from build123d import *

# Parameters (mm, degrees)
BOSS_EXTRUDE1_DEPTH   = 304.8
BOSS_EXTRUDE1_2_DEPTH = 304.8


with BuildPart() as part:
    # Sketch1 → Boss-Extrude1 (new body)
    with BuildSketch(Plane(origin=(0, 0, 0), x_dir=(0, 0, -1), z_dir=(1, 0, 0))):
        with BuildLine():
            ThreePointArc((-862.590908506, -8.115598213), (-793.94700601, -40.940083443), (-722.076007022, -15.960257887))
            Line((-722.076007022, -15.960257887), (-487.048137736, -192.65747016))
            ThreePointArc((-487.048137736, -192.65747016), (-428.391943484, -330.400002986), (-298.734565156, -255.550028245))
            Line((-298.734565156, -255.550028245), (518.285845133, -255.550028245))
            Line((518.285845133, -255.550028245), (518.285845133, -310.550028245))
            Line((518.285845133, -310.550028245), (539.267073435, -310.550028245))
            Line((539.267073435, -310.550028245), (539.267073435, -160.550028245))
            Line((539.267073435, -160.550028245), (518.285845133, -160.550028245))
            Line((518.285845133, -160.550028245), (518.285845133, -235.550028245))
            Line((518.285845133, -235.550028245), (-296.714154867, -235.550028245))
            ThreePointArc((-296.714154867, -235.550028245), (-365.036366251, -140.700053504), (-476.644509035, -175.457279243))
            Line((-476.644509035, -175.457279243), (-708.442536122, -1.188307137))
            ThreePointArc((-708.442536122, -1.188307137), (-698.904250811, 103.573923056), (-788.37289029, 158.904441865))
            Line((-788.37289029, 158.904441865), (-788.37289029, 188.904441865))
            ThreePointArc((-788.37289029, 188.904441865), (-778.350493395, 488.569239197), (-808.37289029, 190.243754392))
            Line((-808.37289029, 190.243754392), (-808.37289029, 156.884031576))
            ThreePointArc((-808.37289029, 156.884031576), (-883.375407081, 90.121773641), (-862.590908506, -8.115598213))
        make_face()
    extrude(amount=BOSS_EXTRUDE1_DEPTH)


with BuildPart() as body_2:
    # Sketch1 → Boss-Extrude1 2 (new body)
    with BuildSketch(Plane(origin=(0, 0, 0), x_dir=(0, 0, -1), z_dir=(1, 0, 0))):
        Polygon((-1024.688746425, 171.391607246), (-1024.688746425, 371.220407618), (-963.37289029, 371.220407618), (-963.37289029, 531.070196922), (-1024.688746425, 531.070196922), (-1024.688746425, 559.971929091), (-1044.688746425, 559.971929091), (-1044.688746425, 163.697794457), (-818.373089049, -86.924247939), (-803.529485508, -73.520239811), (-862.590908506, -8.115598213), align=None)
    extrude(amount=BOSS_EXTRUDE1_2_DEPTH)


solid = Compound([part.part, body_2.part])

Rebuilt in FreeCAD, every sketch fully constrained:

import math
import FreeCAD as App
import Part
import Sketcher

V = App.Vector

doc = App.newDocument("Part")
params = doc.addObject("Spreadsheet::Sheet", "Params")
for row, (alias, value) in enumerate([
    ("sketch1_radius", "100 mm"),
    ("sketch1_radius2", "150 mm"),
    ("sketch1_width", "55 mm"),
    ("sketch1_width2", "150 mm"),
    ("sketch1_width3", "75 mm"),
    ("pad1_length", "304.8 mm"),
    ("sketch2_height", "20 mm"),
    ("sketch2_length", "20 mm"),
    ("pad2_length", "304.8 mm"),
], start=1):
    params.set(f"A{row}", alias)
    params.set(f"B{row}", "=" + value)
    params.setAlias(f"B{row}", alias)

body = doc.addObject("PartDesign::Body", "Body")

# Sketch on YZ plane
sketch1 = body.newObject("Sketcher::SketchObject", "Sketch")
sketch1.AttachmentSupport = (doc.getObject("YZ_Plane"), [""])
sketch1.MapMode = "FlatFace"
sketch1.addGeometry(Part.ArcOfCircle(Part.Circle(V(59, 788, 0), V(0, 0, 1), 100), math.radians(132), math.radians(222)), False)
sketch1.addGeometry(Part.LineSegment(V(-16, 722, 0), V(-193, 487, 0)), False)
sketch1.addGeometry(Part.ArcOfCircle(Part.Circle(V(-236, 397, 0), V(0, 0, 1), 100), math.radians(65), math.radians(258)), False)
sketch1.addGeometry(Part.LineSegment(V(-256, 299, 0), V(-256, -518, 0)), False)
sketch1.addGeometry(Part.LineSegment(V(-256, -518, 0), V(-311, -518, 0)), False)
sketch1.addGeometry(Part.LineSegment(V(-311, -518, 0), V(-311, -539, 0)), False)
sketch1.addGeometry(Part.LineSegment(V(-311, -539, 0), V(-161, -539, 0)), False)
sketch1.addGeometry(Part.LineSegment(V(-161, -539, 0), V(-161, -518, 0)), False)
sketch1.addGeometry(Part.LineSegment(V(-161, -518, 0), V(-236, -518, 0)), False)
sketch1.addGeometry(Part.LineSegment(V(-236, -518, 0), V(-236, 297, 0)), False)
sketch1.addGeometry(Part.ArcOfCircle(Part.Circle(V(-236, 397, 0), V(0, 0, 1), 100), math.radians(-90), math.radians(53)), False)
sketch1.addGeometry(Part.LineSegment(V(-175, 477, 0), V(-1, 708, 0)), False)
sketch1.addGeometry(Part.ArcOfCircle(Part.Circle(V(59, 788, 0), V(0, 0, 1), 100), math.radians(-127), math.radians(0)), False)
sketch1.addGeometry(Part.LineSegment(V(159, 788, 0), V(189, 788, 0)), False)
sketch1.addGeometry(Part.ArcOfCircle(Part.Circle(V(339, 788, 0), V(0, 0, 1), 150), math.radians(180), math.radians(532)), False)
sketch1.addGeometry(Part.LineSegment(V(190, 808, 0), V(157, 808, 0)), False)
sketch1.addGeometry(Part.ArcOfCircle(Part.Circle(V(59, 788, 0), V(0, 0, 1), 100), math.radians(12), math.radians(132)), False)
sketch1.addConstraint(Sketcher.Constraint("Coincident", 0, 2, 1, 1))
sketch1.addConstraint(Sketcher.Constraint("Coincident", 1, 2, 2, 1))
sketch1.addConstraint(Sketcher.Constraint("Coincident", 2, 2, 3, 1))
sketch1.addConstraint(Sketcher.Constraint("Coincident", 3, 2, 4, 1))
sketch1.addConstraint(Sketcher.Constraint("Coincident", 4, 2, 5, 1))
sketch1.addConstraint(Sketcher.Constraint("Coincident", 5, 2, 6, 1))
sketch1.addConstraint(Sketcher.Constraint("Coincident", 6, 2, 7, 1))
sketch1.addConstraint(Sketcher.Constraint("Coincident", 7, 2, 8, 1))
sketch1.addConstraint(Sketcher.Constraint("Coincident", 8, 2, 9, 1))
sketch1.addConstraint(Sketcher.Constraint("Coincident", 9, 2, 10, 1))
sketch1.addConstraint(Sketcher.Constraint("Coincident", 10, 2, 11, 1))
sketch1.addConstraint(Sketcher.Constraint("Coincident", 11, 2, 12, 1))
sketch1.addConstraint(Sketcher.Constraint("Coincident", 12, 2, 13, 1))
sketch1.addConstraint(Sketcher.Constraint("Coincident", 13, 2, 14, 1))
sketch1.addConstraint(Sketcher.Constraint("Coincident", 14, 2, 15, 1))
sketch1.addConstraint(Sketcher.Constraint("Coincident", 15, 2, 16, 1))
sketch1.addConstraint(Sketcher.Constraint("Tangent", 16, 2, 0, 1))
sketch1.addConstraint(Sketcher.Constraint("Vertical", 3))
sketch1.addConstraint(Sketcher.Constraint("Horizontal", 4))
sketch1.addConstraint(Sketcher.Constraint("Vertical", 5))
sketch1.addConstraint(Sketcher.Constraint("Horizontal", 6))
sketch1.addConstraint(Sketcher.Constraint("Vertical", 7))
sketch1.addConstraint(Sketcher.Constraint("Horizontal", 8))
sketch1.addConstraint(Sketcher.Constraint("Vertical", 9))
sketch1.addConstraint(Sketcher.Constraint("Horizontal", 13))
sketch1.addConstraint(Sketcher.Constraint("Horizontal", 15))
sketch1.addConstraint(Sketcher.Constraint("Coincident", 10, 3, 2, 3))
sketch1.addConstraint(Sketcher.Constraint("Coincident", 12, 3, 0, 3))
sketch1.addConstraint(Sketcher.Constraint("Equal", 0, 2))
sketch1.addConstraint(Sketcher.Constraint("Equal", 2, 10))
sketch1.addConstraint(Sketcher.Constraint("Equal", 10, 12))
sketch1.addConstraint(Sketcher.Constraint("Equal", 12, 16))
sketch1.addConstraint(Sketcher.Constraint("Parallel", 1, 11))
sketch1.addConstraint(Sketcher.Constraint("Horizontal", 12, 3, 14, 3))
sketch1.addConstraint(Sketcher.Constraint("Horizontal", 4, 2, 7, 2))
sketch1.addConstraint(Sketcher.Constraint("Horizontal", 16, 3, 12, 2))
sketch1.addConstraint(Sketcher.Constraint("Vertical", 10, 3, 8, 2))
sketch1.addConstraint(Sketcher.Constraint("Radius", 0, 100.0))
sketch1.addConstraint(Sketcher.Constraint("Radius", 14, 150.0))
sketch1.addConstraint(Sketcher.Constraint("DistanceX", 4, 2, 4, 1, 55.0))
sketch1.addConstraint(Sketcher.Constraint("DistanceX", 6, 1, 6, 2, 150.0))
sketch1.addConstraint(Sketcher.Constraint("DistanceX", 8, 2, 8, 1, 75.0))
sketch1.addConstraint(Sketcher.Constraint("DistanceX", 13, 1, 13, 2, 30.0))
sketch1.addConstraint(Sketcher.Constraint("DistanceY", 9, 1, 9, 2, 815.0))
sketch1.addConstraint(Sketcher.Constraint("Distance", 11, 290.0))
sketch1.addConstraint(Sketcher.Constraint("DistanceY", 13, 2, 14, 2, 20.0))
sketch1.addConstraint(Sketcher.Constraint("DistanceY", 5, 2, 5, 1, 20.981228))
sketch1.addConstraint(Sketcher.Constraint("DistanceX", 16, 2, -1, 1, 8.115598))
sketch1.addConstraint(Sketcher.Constraint("DistanceX", 0, 2, 0, 3, 74.8647))
sketch1.addConstraint(Sketcher.Constraint("DistanceY", 0, 2, 16, 2, 140.514901))
sketch1.addConstraint(Sketcher.Constraint("Distance", 1, 294.040821))
sketch1.addConstraint(Sketcher.Constraint("DistanceY", -1, 1, 0, 3, 788.37289))
sketch1.addConstraint(Sketcher.Constraint("DistanceX", 2, 3, -1, 1, 235.550028))
sketch1.addConstraint(Sketcher.Constraint("DistanceX", 10, 2, -1, 1, 175.457279))
sketch1.setExpression("Constraints[37]", "Params.sketch1_radius")
sketch1.setExpression("Constraints[38]", "Params.sketch1_radius2")
sketch1.setExpression("Constraints[39]", "Params.sketch1_width")
sketch1.setExpression("Constraints[40]", "Params.sketch1_width2")
sketch1.setExpression("Constraints[41]", "Params.sketch1_width3")
pad1 = body.newObject("PartDesign::Pad", "Pad")
pad1.Profile = sketch1
pad1.setExpression("Length", "Params.pad1_length")
body2 = doc.addObject("PartDesign::Body", "Body001")

# Sketch on YZ plane
sketch2 = body2.newObject("Sketcher::SketchObject", "Sketch001")
sketch2.AttachmentSupport = (doc.getObject("YZ_Plane001"), [""])
sketch2.MapMode = "FlatFace"
sketch2.addGeometry(Part.LineSegment(V(171.391607, 1024.688746, 0), V(371.220408, 1024.688746, 0)), False)
sketch2.addGeometry(Part.LineSegment(V(371.220408, 1024.688746, 0), V(371.220408, 963.37289, 0)), False)
sketch2.addGeometry(Part.LineSegment(V(371.220408, 963.37289, 0), V(531.070197, 963.37289, 0)), False)
sketch2.addGeometry(Part.LineSegment(V(531.070197, 963.37289, 0), V(531.070197, 1024.688746, 0)), False)
sketch2.addGeometry(Part.LineSegment(V(531.070197, 1024.688746, 0), V(559.971929, 1024.688746, 0)), False)
sketch2.addGeometry(Part.LineSegment(V(559.971929, 1024.688746, 0), V(559.971929, 1044.688746, 0)), False)
sketch2.addGeometry(Part.LineSegment(V(559.971929, 1044.688746, 0), V(163.697794, 1044.688746, 0)), False)
sketch2.addGeometry(Part.LineSegment(V(163.697794, 1044.688746, 0), V(-86.924248, 818.373089, 0)), False)
sketch2.addGeometry(Part.LineSegment(V(-86.924248, 818.373089, 0), V(-73.52024, 803.529486, 0)), False)
sketch2.addGeometry(Part.LineSegment(V(-73.52024, 803.529486, 0), V(-8.115598, 862.590909, 0)), False)
sketch2.addGeometry(Part.LineSegment(V(-8.115598, 862.590909, 0), V(171.391607, 1024.688746, 0)), False)
sketch2.addConstraint(Sketcher.Constraint("Coincident", 0, 2, 1, 1))
sketch2.addConstraint(Sketcher.Constraint("Coincident", 1, 2, 2, 1))
sketch2.addConstraint(Sketcher.Constraint("Coincident", 2, 2, 3, 1))
sketch2.addConstraint(Sketcher.Constraint("Coincident", 3, 2, 4, 1))
sketch2.addConstraint(Sketcher.Constraint("Coincident", 4, 2, 5, 1))
sketch2.addConstraint(Sketcher.Constraint("Coincident", 5, 2, 6, 1))
sketch2.addConstraint(Sketcher.Constraint("Coincident", 6, 2, 7, 1))
sketch2.addConstraint(Sketcher.Constraint("Coincident", 7, 2, 8, 1))
sketch2.addConstraint(Sketcher.Constraint("Coincident", 8, 2, 9, 1))
sketch2.addConstraint(Sketcher.Constraint("Coincident", 9, 2, 10, 1))
sketch2.addConstraint(Sketcher.Constraint("Coincident", 10, 2, 0, 1))
sketch2.addConstraint(Sketcher.Constraint("Horizontal", 0))
sketch2.addConstraint(Sketcher.Constraint("Vertical", 1))
sketch2.addConstraint(Sketcher.Constraint("Horizontal", 2))
sketch2.addConstraint(Sketcher.Constraint("Vertical", 3))
sketch2.addConstraint(Sketcher.Constraint("Horizontal", 4))
sketch2.addConstraint(Sketcher.Constraint("Vertical", 5))
sketch2.addConstraint(Sketcher.Constraint("Horizontal", 6))
sketch2.addConstraint(Sketcher.Constraint("Perpendicular", 7, 8))
sketch2.addConstraint(Sketcher.Constraint("Perpendicular", 8, 9))
sketch2.addConstraint(Sketcher.Constraint("Parallel", 9, 10))
sketch2.addConstraint(Sketcher.Constraint("Horizontal", 0, 2, 3, 2))
sketch2.addConstraint(Sketcher.Constraint("DistanceY", 5, 1, 5, 2, 20.0))
sketch2.addConstraint(Sketcher.Constraint("Distance", 8, 20.0))
sketch2.addConstraint(Sketcher.Constraint("DistanceX", 0, 1, 0, 2, 199.8288))
sketch2.addConstraint(Sketcher.Constraint("DistanceX", 2, 1, 2, 2, 159.849789))
sketch2.addConstraint(Sketcher.Constraint("DistanceX", 9, 2, -1, 1, 8.115598))
sketch2.addConstraint(Sketcher.Constraint("DistanceY", 7, 2, 1, 2, 144.999801))
sketch2.addConstraint(Sketcher.Constraint("Distance", 9, 88.125018))
sketch2.addConstraint(Sketcher.Constraint("DistanceX", 4, 1, 4, 2, 28.901732))
sketch2.addConstraint(Sketcher.Constraint("DistanceX", 6, 2, 6, 1, 396.274135))
sketch2.addConstraint(Sketcher.Constraint("DistanceY", 1, 2, 1, 1, 61.315856))
sketch2.addConstraint(Sketcher.Constraint("DistanceY", -1, 1, 1, 2, 963.37289))
sketch2.setExpression("Constraints[22]", "Params.sketch2_height")
sketch2.setExpression("Constraints[23]", "Params.sketch2_length")
pad2 = body2.newObject("PartDesign::Pad", "Pad001")
pad2.Profile = sketch2
pad2.setExpression("Length", "Params.pad2_length")

doc.recompute()
